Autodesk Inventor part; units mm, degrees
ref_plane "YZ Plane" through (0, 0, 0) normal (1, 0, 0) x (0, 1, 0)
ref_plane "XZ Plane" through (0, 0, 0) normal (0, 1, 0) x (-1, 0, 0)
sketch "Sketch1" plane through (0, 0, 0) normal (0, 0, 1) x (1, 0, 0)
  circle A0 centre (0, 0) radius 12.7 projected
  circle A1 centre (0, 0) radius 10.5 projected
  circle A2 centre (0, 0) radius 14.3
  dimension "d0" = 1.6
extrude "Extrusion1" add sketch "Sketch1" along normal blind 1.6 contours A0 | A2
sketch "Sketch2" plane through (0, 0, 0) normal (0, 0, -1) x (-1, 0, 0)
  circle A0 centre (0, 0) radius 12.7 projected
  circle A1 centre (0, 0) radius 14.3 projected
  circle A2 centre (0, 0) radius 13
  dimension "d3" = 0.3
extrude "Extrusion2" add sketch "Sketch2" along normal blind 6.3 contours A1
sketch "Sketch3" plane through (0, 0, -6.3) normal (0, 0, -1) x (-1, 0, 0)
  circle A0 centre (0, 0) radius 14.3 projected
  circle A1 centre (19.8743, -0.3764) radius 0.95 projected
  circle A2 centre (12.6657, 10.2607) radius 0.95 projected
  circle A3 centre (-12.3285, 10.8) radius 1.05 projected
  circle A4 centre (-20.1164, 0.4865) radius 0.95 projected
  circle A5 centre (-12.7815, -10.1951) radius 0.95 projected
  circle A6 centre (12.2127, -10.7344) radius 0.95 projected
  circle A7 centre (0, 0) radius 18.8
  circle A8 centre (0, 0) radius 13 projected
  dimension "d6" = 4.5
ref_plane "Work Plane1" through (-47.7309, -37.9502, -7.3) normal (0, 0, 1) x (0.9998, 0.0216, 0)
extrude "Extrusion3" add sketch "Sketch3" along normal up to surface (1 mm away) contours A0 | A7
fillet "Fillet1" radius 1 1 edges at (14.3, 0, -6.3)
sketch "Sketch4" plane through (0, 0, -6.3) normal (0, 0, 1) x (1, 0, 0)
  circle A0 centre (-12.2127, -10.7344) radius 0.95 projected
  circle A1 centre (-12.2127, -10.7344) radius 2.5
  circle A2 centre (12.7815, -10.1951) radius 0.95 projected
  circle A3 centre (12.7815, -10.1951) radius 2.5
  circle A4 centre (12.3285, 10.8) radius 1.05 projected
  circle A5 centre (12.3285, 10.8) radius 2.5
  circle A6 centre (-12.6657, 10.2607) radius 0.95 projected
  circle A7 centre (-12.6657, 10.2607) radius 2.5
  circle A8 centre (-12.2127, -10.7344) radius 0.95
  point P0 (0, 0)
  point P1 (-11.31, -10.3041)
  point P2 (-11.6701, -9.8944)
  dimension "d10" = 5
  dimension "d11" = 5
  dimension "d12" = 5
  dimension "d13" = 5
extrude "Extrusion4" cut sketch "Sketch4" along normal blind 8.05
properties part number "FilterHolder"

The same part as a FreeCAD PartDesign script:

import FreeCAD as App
import Part
import Sketcher

V = App.Vector
Q = App.Units.Quantity


def edges_at(feature, points):
    """Names of the edges that pass closest to the given points."""
    edges = feature.Shape.Edges
    near = lambda p: min(range(len(edges)), key=lambda i: edges[i].distToShape(Part.Vertex(*p))[0])
    return sorted({f"Edge{near(p) + 1}" for p in points})

doc = App.newDocument("Part")
params = doc.addObject("Spreadsheet::Sheet", "Params")
for row, (alias, value) in enumerate([
    ("sketch1_diameter", "21 mm"),
    ("sketch1_diameter2", "28.6 mm"),
    ("pad1_length", "1.6 mm"),
    ("sketch2_diameter", "26 mm"),
    ("sketch2_diameter2", "28.6 mm"),
    ("pad2_length", "6.3 mm"),
    ("sketch3_diameter", "26 mm"),
    ("sketch3_diameter2", "37.6 mm"),
    ("sketch3_diameter3", "1.9 mm"),
    ("sketch3_diameter4", "2.1 mm"),
    ("pad3_length", "1 mm"),
    ("fillet_radius", "1 mm"),
    ("sketch4_diameter", "5 mm"),
    ("sketch4_diameter2", "1.9 mm"),
    ("sketch4_diameter3", "2.1 mm"),
    ("pocket1_length", "8.05 mm"),
], start=1):
    params.set(f"A{row}", alias)
    params.set(f"B{row}", "=" + value)
    params.setAlias(f"B{row}", alias)

body = doc.addObject("PartDesign::Body", "Body")

# Sketch on XY plane
sketch1 = body.newObject("Sketcher::SketchObject", "Sketch")
sketch1.AttachmentSupport = (doc.getObject("XY_Plane"), [""])
sketch1.MapMode = "FlatFace"
sketch1.addGeometry(Part.Circle(V(0, 0, 0), V(0, 0, 1), 14), False)
sketch1.addGeometry(Part.Circle(V(0, 0, 0), V(0, 0, 1), 10), False)
sketch1.addConstraint(Sketcher.Constraint("Coincident", 0, 3, -1, 1))
sketch1.addConstraint(Sketcher.Constraint("Coincident", 1, 3, -1, 1))
sketch1.addConstraint(Sketcher.Constraint("Diameter", 1, Q("21 mm")))
sketch1.addConstraint(Sketcher.Constraint("Diameter", 0, Q("28.6 mm")))
sketch1.setExpression("Constraints[2]", "Params.sketch1_diameter")
sketch1.setExpression("Constraints[3]", "Params.sketch1_diameter2")
pad1 = body.newObject("PartDesign::Pad", "Pad")
pad1.Profile = sketch1
pad1.setExpression("Length", "Params.pad1_length")

# Sketch on XY plane
sketch2 = body.newObject("Sketcher::SketchObject", "Sketch001")
sketch2.AttachmentSupport = (doc.getObject("XY_Plane"), [""])
sketch2.MapMode = "FlatFace"
sketch2.addGeometry(Part.Circle(V(0, 0, 0), V(0, 0, 1), 14), False)
sketch2.addGeometry(Part.Circle(V(0, 0, 0), V(0, 0, 1), 13), False)
sketch2.addConstraint(Sketcher.Constraint("Coincident", 0, 3, -1, 1))
sketch2.addConstraint(Sketcher.Constraint("Coincident", 1, 3, -1, 1))
sketch2.addConstraint(Sketcher.Constraint("Diameter", 1, Q("26 mm")))
sketch2.addConstraint(Sketcher.Constraint("Diameter", 0, Q("28.6 mm")))
sketch2.setExpression("Constraints[2]", "Params.sketch2_diameter")
sketch2.setExpression("Constraints[3]", "Params.sketch2_diameter2")
pad2 = body.newObject("PartDesign::Pad", "Pad001")
pad2.Profile = sketch2
pad2.setExpression("Length", "Params.pad2_length")
pad2.Reversed = True

# Sketch on XY plane
sketch3 = body.newObject("Sketcher::SketchObject", "Sketch002")
sketch3.AttachmentSupport = (doc.getObject("XY_Plane"), [""])
sketch3.MapMode = "FlatFace"
sketch3.AttachmentOffset = App.Placement(V(0, 0, -6.3), App.Rotation())
sketch3.addGeometry(Part.Circle(V(0, 0, 0), V(0, 0, 1), 18.8), False)
sketch3.addGeometry(Part.Circle(V(0, 0, 0), V(0, 0, 1), 13), False)
sketch3.addGeometry(Part.Circle(V(12.8, -10.2, 0), V(0, 0, 1), 0.9), False)
sketch3.addGeometry(Part.Circle(V(-12.2, -10.7, 0), V(0, 0, 1), 0.9), False)
sketch3.addGeometry(Part.Circle(V(12.3, 10.8, 0), V(0, 0, 1), 1.1), False)
sketch3.addGeometry(Part.Circle(V(-12.7, 10.3, 0), V(0, 0, 1), 0.9), False)
sketch3.addConstraint(Sketcher.Constraint("Coincident", 0, 3, -1, 1))
sketch3.addConstraint(Sketcher.Constraint("Coincident", 1, 3, -1, 1))
sketch3.addConstraint(Sketcher.Constraint("Equal", 2, 3))
sketch3.addConstraint(Sketcher.Constraint("Equal", 3, 5))
sketch3.addConstraint(Sketcher.Constraint("Diameter", 1, Q("26 mm")))
sketch3.addConstraint(Sketcher.Constraint("Diameter", 0, Q("37.6 mm")))
sketch3.addConstraint(Sketcher.Constraint("Diameter", 2, Q("1.9 mm")))
sketch3.addConstraint(Sketcher.Constraint("Diameter", 4, Q("2.1 mm")))
sketch3.addConstraint(Sketcher.Constraint("DistanceY", -1, 1, 4, 3, Q("10.8 mm")))
sketch3.addConstraint(Sketcher.Constraint("DistanceY", 2, 3, -1, 1, Q("10.195 mm")))
sketch3.addConstraint(Sketcher.Constraint("DistanceX", 4, 3, 2, 3, Q("0.453 mm")))
sketch3.addConstraint(Sketcher.Constraint("DistanceX", 5, 3, 3, 3, Q("0.453 mm")))
sketch3.addConstraint(Sketcher.Constraint("DistanceY", 3, 3, 5, 3, Q("20.995 mm")))
sketch3.addConstraint(Sketcher.Constraint("DistanceX", -1, 1, 2, 3, Q("12.7815 mm")))
sketch3.addConstraint(Sketcher.Constraint("DistanceX", 3, 3, -1, 1, Q("12.2127 mm")))
sketch3.addConstraint(Sketcher.Constraint("DistanceY", 3, 3, -1, 1, Q("10.7344 mm")))
sketch3.setExpression("Constraints[4]", "Params.sketch3_diameter")
sketch3.setExpression("Constraints[5]", "Params.sketch3_diameter2")
sketch3.setExpression("Constraints[6]", "Params.sketch3_diameter3")
sketch3.setExpression("Constraints[7]", "Params.sketch3_diameter4")
pad3 = body.newObject("PartDesign::Pad", "Pad002")
pad3.Profile = sketch3
pad3.setExpression("Length", "Params.pad3_length")
pad3.Reversed = True
doc.recompute()

fillet = body.newObject("PartDesign::Fillet", "Fillet")
fillet.Base = (pad3, edges_at(pad3, [(14.3, 0, -6.3)]))
fillet.setExpression("Radius", "Params.fillet_radius")

# Sketch on XY plane
sketch4 = body.newObject("Sketcher::SketchObject", "Sketch003")
sketch4.AttachmentSupport = (doc.getObject("XY_Plane"), [""])
sketch4.MapMode = "FlatFace"
sketch4.AttachmentOffset = App.Placement(V(0, 0, -6.3), App.Rotation())
sketch4.addGeometry(Part.Circle(V(-12.2, -10.7, 0), V(0, 0, 1), 2.5), False)
sketch4.addGeometry(Part.Circle(V(-12.2, -10.7, 0), V(0, 0, 1), 0.9), False)
sketch4.addGeometry(Part.Circle(V(12.8, -10.2, 0), V(0, 0, 1), 2.5), False)
sketch4.addGeometry(Part.Circle(V(12.8, -10.2, 0), V(0, 0, 1), 0.9), False)
sketch4.addGeometry(Part.Circle(V(12.3, 10.8, 0), V(0, 0, 1), 2.5), False)
sketch4.addGeometry(Part.Circle(V(12.3, 10.8, 0), V(0, 0, 1), 1.1), False)
sketch4.addGeometry(Part.Circle(V(-12.7, 10.3, 0), V(0, 0, 1), 2.5), False)
sketch4.addGeometry(Part.Circle(V(-12.7, 10.3, 0), V(0, 0, 1), 0.9), False)
sketch4.addConstraint(Sketcher.Constraint("Coincident", 1, 3, 0, 3))
sketch4.addConstraint(Sketcher.Constraint("Coincident", 3, 3, 2, 3))
sketch4.addConstraint(Sketcher.Constraint("Coincident", 5, 3, 4, 3))
sketch4.addConstraint(Sketcher.Constraint("Coincident", 7, 3, 6, 3))
sketch4.addConstraint(Sketcher.Constraint("Equal", 0, 2))
sketch4.addConstraint(Sketcher.Constraint("Equal", 1, 3))
sketch4.addConstraint(Sketcher.Constraint("Equal", 2, 4))
sketch4.addConstraint(Sketcher.Constraint("Equal", 4, 6))
sketch4.addConstraint(Sketcher.Constraint("Equal", 3, 7))
sketch4.addConstraint(Sketcher.Constraint("Diameter", 0, Q("5 mm")))
sketch4.addConstraint(Sketcher.Constraint("Diameter", 1, Q("1.9 mm")))
sketch4.addConstraint(Sketcher.Constraint("Diameter", 5, Q("2.1 mm")))
sketch4.addConstraint(Sketcher.Constraint("DistanceY", -1, 1, 4, 3, Q("10.8 mm")))
sketch4.addConstraint(Sketcher.Constraint("DistanceY", 2, 3, -1, 1, Q("10.195 mm")))
sketch4.addConstraint(Sketcher.Constraint("DistanceX", 4, 3, 2, 3, Q("0.453 mm")))
sketch4.addConstraint(Sketcher.Constraint("DistanceX", 6, 3, 0, 3, Q("0.453 mm")))
sketch4.addConstraint(Sketcher.Constraint("DistanceY", 0, 3, 6, 3, Q("20.995 mm")))
sketch4.addConstraint(Sketcher.Constraint("DistanceX", 0, 3, -1, 1, Q("12.2127 mm")))
sketch4.addConstraint(Sketcher.Constraint("DistanceY", 0, 3, -1, 1, Q("10.7344 mm")))
sketch4.addConstraint(Sketcher.Constraint("DistanceX", -1, 1, 2, 3, Q("12.7815 mm")))
sketch4.setExpression("Constraints[9]", "Params.sketch4_diameter")
sketch4.setExpression("Constraints[10]", "Params.sketch4_diameter2")
sketch4.setExpression("Constraints[11]", "Params.sketch4_diameter3")
pocket1 = body.newObject("PartDesign::Pocket", "Pocket")
pocket1.Profile = sketch4
pocket1.setExpression("Length", "Params.pocket1_length")
pocket1.Reversed = True

doc.recompute()
